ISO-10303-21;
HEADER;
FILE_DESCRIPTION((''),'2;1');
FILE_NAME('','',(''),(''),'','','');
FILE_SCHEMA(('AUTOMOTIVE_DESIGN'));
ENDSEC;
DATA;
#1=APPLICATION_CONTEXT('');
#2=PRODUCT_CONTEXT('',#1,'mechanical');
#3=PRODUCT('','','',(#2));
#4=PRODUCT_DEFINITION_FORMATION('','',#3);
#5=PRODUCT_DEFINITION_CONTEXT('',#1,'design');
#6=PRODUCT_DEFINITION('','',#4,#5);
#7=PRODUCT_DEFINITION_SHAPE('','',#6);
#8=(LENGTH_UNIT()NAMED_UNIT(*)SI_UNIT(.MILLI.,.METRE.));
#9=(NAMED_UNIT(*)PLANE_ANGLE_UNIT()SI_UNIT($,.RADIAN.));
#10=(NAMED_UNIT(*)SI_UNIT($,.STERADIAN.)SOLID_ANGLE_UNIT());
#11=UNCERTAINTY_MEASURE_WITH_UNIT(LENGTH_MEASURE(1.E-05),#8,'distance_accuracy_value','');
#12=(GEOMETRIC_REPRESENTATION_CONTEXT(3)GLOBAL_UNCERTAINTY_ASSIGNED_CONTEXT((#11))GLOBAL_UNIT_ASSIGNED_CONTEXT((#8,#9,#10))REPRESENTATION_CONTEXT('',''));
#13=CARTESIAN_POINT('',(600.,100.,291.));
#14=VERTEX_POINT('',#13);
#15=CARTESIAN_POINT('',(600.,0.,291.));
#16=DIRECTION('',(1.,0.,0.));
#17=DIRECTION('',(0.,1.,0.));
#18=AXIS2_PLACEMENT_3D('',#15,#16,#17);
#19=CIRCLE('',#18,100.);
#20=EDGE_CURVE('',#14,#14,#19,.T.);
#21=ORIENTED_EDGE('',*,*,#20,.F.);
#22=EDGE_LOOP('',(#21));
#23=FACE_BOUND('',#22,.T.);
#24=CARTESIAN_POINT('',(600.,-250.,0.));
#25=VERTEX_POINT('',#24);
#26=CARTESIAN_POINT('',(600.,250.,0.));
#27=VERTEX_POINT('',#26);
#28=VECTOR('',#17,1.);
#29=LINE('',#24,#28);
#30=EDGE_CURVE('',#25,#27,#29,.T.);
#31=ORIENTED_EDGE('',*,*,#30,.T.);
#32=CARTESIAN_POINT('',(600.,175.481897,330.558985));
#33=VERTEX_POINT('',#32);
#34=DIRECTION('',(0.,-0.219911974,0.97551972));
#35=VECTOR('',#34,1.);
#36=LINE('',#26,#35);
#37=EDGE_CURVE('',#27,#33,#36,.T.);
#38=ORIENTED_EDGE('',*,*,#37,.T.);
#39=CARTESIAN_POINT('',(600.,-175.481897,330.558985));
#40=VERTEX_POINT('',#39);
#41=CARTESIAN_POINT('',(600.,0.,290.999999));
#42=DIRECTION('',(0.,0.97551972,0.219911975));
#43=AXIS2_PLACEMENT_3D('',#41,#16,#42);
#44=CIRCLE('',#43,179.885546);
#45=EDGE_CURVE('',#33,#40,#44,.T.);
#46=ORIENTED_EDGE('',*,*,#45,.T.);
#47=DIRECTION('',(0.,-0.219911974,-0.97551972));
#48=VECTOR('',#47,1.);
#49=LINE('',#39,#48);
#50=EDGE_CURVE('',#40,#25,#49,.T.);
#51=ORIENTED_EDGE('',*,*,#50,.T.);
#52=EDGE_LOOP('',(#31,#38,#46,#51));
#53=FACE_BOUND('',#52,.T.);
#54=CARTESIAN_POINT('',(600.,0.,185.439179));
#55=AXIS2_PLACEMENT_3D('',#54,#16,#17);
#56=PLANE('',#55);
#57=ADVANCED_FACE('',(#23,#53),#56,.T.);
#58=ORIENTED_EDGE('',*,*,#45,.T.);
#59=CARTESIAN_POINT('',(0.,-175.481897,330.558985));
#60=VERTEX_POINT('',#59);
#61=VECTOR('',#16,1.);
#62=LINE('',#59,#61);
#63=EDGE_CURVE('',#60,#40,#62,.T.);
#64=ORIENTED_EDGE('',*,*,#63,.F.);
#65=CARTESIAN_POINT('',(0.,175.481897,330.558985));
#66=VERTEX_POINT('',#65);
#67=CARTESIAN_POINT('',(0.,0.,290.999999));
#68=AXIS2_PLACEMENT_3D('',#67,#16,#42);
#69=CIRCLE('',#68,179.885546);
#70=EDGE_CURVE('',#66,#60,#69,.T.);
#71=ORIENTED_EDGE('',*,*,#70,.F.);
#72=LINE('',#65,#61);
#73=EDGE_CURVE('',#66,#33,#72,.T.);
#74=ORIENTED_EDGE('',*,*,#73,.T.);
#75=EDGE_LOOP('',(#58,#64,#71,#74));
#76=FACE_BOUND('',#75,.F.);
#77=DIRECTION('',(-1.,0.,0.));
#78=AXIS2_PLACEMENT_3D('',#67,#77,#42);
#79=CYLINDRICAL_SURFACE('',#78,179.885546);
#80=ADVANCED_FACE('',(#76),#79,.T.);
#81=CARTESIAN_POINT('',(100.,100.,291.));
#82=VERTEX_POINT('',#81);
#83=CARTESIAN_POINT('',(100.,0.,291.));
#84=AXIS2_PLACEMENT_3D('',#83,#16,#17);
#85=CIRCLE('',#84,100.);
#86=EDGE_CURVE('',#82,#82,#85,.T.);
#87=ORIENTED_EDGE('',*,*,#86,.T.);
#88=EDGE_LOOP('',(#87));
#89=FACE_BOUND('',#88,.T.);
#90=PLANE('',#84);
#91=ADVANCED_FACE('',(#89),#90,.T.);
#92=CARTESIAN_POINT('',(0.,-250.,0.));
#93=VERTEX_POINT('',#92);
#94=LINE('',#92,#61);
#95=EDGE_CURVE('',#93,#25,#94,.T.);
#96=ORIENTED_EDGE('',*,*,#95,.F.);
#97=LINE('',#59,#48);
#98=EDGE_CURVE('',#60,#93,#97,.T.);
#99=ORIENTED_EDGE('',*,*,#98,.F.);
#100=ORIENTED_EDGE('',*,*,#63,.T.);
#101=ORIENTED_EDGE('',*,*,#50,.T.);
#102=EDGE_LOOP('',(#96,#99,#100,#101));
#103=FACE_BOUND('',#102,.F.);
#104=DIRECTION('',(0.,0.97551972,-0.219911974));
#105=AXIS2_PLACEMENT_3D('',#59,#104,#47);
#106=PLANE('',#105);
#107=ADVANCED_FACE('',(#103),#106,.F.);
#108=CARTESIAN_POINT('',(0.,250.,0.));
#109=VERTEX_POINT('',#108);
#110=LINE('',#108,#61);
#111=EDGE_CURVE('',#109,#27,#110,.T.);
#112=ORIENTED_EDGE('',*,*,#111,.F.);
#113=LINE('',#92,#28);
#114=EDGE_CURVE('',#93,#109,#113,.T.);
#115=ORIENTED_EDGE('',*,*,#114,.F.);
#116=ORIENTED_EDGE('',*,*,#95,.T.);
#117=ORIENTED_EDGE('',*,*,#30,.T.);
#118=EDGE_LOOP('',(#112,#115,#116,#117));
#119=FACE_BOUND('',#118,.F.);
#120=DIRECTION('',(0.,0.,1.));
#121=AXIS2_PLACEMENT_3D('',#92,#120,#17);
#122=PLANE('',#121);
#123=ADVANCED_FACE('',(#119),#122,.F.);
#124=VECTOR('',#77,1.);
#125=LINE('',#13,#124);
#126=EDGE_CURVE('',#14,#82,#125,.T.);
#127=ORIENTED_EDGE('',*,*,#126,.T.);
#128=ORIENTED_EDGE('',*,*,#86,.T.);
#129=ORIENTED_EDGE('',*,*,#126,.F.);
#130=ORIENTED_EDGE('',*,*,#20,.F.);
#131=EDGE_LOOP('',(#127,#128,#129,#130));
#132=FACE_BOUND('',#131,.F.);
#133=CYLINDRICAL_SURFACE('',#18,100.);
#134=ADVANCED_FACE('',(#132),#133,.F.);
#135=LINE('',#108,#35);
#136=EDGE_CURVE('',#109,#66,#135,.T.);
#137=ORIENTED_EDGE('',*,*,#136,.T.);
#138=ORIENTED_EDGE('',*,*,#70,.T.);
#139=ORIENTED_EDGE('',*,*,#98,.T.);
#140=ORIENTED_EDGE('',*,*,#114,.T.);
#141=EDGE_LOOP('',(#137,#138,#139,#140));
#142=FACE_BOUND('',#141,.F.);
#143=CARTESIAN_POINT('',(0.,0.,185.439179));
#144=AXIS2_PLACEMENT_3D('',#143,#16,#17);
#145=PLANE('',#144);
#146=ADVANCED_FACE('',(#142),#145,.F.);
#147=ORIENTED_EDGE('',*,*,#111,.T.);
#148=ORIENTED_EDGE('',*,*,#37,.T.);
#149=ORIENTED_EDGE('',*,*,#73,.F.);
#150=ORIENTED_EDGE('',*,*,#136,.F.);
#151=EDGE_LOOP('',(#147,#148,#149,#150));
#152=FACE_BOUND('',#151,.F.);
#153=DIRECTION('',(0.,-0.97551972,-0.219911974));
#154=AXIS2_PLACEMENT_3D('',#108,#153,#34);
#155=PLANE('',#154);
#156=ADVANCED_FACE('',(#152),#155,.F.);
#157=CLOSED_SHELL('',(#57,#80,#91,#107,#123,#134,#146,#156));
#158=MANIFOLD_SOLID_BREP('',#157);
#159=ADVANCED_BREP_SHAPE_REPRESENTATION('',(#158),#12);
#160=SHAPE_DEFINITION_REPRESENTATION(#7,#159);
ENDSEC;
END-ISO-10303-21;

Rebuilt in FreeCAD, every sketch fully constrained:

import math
import FreeCAD as App
import Part
import Sketcher

V = App.Vector

doc = App.newDocument("Part")
body = doc.addObject("PartDesign::Body", "Body")

# Sketch on YZ plane
sketch1 = body.newObject("Sketcher::SketchObject", "Sketch")
sketch1.AttachmentSupport = (doc.getObject("YZ_Plane"), [""])
sketch1.MapMode = "FlatFace"
sketch1.addGeometry(Part.LineSegment(V(250, 0, 0), V(175, 331, 0)), False)
sketch1.addGeometry(Part.ArcOfCircle(Part.Circle(V(0, 291, 0), V(0, 0, 1), 180), math.radians(13), math.radians(167)), False)
sketch1.addGeometry(Part.LineSegment(V(-175, 331, 0), V(-250, 0, 0)), False)
sketch1.addGeometry(Part.LineSegment(V(-250, 0, 0), V(250, 0, 0)), False)
sketch1.addConstraint(Sketcher.Constraint("Tangent", 0, 2, 1, 1))
sketch1.addConstraint(Sketcher.Constraint("Tangent", 1, 2, 2, 1))
sketch1.addConstraint(Sketcher.Constraint("Coincident", 2, 2, 3, 1))
sketch1.addConstraint(Sketcher.Constraint("Coincident", 3, 2, 0, 1))
sketch1.addConstraint(Sketcher.Constraint("Horizontal", 3))
sketch1.addConstraint(Sketcher.Constraint("Symmetric", 2, 2, 3, 2, -1, 1))
sketch1.addConstraint(Sketcher.Constraint("PointOnObject", 1, 3, -2))
sketch1.addConstraint(Sketcher.Constraint("DistanceX", 3, 1, 3, 2, 500.0))
sketch1.addConstraint(Sketcher.Constraint("DistanceY", -1, 1, 1, 3, 290.999999))
sketch1.addConstraint(Sketcher.Constraint("Radius", 1, 179.885546))
pad1 = body.newObject("PartDesign::Pad", "Pad")
pad1.Profile = sketch1
pad1.Length = 600

# Sketch on YZ plane
sketch2 = body.newObject("Sketcher::SketchObject", "Sketch001")
sketch2.AttachmentSupport = (doc.getObject("YZ_Plane"), [""])
sketch2.MapMode = "FlatFace"
sketch2.AttachmentOffset = App.Placement(V(0, 0, 600), App.Rotation())
sketch2.addGeometry(Part.Circle(V(0, 291, 0), V(0, 0, 1), 100), False)
sketch2.addConstraint(Sketcher.Constraint("PointOnObject", 0, 3, -2))
sketch2.addConstraint(Sketcher.Constraint("Diameter", 0, 200.0))
sketch2.addConstraint(Sketcher.Constraint("DistanceY", -1, 1, 0, 3, 291.0))
pocket1 = body.newObject("PartDesign::Pocket", "Pocket")
pocket1.Profile = sketch2
pocket1.Length = 500

doc.recompute()
